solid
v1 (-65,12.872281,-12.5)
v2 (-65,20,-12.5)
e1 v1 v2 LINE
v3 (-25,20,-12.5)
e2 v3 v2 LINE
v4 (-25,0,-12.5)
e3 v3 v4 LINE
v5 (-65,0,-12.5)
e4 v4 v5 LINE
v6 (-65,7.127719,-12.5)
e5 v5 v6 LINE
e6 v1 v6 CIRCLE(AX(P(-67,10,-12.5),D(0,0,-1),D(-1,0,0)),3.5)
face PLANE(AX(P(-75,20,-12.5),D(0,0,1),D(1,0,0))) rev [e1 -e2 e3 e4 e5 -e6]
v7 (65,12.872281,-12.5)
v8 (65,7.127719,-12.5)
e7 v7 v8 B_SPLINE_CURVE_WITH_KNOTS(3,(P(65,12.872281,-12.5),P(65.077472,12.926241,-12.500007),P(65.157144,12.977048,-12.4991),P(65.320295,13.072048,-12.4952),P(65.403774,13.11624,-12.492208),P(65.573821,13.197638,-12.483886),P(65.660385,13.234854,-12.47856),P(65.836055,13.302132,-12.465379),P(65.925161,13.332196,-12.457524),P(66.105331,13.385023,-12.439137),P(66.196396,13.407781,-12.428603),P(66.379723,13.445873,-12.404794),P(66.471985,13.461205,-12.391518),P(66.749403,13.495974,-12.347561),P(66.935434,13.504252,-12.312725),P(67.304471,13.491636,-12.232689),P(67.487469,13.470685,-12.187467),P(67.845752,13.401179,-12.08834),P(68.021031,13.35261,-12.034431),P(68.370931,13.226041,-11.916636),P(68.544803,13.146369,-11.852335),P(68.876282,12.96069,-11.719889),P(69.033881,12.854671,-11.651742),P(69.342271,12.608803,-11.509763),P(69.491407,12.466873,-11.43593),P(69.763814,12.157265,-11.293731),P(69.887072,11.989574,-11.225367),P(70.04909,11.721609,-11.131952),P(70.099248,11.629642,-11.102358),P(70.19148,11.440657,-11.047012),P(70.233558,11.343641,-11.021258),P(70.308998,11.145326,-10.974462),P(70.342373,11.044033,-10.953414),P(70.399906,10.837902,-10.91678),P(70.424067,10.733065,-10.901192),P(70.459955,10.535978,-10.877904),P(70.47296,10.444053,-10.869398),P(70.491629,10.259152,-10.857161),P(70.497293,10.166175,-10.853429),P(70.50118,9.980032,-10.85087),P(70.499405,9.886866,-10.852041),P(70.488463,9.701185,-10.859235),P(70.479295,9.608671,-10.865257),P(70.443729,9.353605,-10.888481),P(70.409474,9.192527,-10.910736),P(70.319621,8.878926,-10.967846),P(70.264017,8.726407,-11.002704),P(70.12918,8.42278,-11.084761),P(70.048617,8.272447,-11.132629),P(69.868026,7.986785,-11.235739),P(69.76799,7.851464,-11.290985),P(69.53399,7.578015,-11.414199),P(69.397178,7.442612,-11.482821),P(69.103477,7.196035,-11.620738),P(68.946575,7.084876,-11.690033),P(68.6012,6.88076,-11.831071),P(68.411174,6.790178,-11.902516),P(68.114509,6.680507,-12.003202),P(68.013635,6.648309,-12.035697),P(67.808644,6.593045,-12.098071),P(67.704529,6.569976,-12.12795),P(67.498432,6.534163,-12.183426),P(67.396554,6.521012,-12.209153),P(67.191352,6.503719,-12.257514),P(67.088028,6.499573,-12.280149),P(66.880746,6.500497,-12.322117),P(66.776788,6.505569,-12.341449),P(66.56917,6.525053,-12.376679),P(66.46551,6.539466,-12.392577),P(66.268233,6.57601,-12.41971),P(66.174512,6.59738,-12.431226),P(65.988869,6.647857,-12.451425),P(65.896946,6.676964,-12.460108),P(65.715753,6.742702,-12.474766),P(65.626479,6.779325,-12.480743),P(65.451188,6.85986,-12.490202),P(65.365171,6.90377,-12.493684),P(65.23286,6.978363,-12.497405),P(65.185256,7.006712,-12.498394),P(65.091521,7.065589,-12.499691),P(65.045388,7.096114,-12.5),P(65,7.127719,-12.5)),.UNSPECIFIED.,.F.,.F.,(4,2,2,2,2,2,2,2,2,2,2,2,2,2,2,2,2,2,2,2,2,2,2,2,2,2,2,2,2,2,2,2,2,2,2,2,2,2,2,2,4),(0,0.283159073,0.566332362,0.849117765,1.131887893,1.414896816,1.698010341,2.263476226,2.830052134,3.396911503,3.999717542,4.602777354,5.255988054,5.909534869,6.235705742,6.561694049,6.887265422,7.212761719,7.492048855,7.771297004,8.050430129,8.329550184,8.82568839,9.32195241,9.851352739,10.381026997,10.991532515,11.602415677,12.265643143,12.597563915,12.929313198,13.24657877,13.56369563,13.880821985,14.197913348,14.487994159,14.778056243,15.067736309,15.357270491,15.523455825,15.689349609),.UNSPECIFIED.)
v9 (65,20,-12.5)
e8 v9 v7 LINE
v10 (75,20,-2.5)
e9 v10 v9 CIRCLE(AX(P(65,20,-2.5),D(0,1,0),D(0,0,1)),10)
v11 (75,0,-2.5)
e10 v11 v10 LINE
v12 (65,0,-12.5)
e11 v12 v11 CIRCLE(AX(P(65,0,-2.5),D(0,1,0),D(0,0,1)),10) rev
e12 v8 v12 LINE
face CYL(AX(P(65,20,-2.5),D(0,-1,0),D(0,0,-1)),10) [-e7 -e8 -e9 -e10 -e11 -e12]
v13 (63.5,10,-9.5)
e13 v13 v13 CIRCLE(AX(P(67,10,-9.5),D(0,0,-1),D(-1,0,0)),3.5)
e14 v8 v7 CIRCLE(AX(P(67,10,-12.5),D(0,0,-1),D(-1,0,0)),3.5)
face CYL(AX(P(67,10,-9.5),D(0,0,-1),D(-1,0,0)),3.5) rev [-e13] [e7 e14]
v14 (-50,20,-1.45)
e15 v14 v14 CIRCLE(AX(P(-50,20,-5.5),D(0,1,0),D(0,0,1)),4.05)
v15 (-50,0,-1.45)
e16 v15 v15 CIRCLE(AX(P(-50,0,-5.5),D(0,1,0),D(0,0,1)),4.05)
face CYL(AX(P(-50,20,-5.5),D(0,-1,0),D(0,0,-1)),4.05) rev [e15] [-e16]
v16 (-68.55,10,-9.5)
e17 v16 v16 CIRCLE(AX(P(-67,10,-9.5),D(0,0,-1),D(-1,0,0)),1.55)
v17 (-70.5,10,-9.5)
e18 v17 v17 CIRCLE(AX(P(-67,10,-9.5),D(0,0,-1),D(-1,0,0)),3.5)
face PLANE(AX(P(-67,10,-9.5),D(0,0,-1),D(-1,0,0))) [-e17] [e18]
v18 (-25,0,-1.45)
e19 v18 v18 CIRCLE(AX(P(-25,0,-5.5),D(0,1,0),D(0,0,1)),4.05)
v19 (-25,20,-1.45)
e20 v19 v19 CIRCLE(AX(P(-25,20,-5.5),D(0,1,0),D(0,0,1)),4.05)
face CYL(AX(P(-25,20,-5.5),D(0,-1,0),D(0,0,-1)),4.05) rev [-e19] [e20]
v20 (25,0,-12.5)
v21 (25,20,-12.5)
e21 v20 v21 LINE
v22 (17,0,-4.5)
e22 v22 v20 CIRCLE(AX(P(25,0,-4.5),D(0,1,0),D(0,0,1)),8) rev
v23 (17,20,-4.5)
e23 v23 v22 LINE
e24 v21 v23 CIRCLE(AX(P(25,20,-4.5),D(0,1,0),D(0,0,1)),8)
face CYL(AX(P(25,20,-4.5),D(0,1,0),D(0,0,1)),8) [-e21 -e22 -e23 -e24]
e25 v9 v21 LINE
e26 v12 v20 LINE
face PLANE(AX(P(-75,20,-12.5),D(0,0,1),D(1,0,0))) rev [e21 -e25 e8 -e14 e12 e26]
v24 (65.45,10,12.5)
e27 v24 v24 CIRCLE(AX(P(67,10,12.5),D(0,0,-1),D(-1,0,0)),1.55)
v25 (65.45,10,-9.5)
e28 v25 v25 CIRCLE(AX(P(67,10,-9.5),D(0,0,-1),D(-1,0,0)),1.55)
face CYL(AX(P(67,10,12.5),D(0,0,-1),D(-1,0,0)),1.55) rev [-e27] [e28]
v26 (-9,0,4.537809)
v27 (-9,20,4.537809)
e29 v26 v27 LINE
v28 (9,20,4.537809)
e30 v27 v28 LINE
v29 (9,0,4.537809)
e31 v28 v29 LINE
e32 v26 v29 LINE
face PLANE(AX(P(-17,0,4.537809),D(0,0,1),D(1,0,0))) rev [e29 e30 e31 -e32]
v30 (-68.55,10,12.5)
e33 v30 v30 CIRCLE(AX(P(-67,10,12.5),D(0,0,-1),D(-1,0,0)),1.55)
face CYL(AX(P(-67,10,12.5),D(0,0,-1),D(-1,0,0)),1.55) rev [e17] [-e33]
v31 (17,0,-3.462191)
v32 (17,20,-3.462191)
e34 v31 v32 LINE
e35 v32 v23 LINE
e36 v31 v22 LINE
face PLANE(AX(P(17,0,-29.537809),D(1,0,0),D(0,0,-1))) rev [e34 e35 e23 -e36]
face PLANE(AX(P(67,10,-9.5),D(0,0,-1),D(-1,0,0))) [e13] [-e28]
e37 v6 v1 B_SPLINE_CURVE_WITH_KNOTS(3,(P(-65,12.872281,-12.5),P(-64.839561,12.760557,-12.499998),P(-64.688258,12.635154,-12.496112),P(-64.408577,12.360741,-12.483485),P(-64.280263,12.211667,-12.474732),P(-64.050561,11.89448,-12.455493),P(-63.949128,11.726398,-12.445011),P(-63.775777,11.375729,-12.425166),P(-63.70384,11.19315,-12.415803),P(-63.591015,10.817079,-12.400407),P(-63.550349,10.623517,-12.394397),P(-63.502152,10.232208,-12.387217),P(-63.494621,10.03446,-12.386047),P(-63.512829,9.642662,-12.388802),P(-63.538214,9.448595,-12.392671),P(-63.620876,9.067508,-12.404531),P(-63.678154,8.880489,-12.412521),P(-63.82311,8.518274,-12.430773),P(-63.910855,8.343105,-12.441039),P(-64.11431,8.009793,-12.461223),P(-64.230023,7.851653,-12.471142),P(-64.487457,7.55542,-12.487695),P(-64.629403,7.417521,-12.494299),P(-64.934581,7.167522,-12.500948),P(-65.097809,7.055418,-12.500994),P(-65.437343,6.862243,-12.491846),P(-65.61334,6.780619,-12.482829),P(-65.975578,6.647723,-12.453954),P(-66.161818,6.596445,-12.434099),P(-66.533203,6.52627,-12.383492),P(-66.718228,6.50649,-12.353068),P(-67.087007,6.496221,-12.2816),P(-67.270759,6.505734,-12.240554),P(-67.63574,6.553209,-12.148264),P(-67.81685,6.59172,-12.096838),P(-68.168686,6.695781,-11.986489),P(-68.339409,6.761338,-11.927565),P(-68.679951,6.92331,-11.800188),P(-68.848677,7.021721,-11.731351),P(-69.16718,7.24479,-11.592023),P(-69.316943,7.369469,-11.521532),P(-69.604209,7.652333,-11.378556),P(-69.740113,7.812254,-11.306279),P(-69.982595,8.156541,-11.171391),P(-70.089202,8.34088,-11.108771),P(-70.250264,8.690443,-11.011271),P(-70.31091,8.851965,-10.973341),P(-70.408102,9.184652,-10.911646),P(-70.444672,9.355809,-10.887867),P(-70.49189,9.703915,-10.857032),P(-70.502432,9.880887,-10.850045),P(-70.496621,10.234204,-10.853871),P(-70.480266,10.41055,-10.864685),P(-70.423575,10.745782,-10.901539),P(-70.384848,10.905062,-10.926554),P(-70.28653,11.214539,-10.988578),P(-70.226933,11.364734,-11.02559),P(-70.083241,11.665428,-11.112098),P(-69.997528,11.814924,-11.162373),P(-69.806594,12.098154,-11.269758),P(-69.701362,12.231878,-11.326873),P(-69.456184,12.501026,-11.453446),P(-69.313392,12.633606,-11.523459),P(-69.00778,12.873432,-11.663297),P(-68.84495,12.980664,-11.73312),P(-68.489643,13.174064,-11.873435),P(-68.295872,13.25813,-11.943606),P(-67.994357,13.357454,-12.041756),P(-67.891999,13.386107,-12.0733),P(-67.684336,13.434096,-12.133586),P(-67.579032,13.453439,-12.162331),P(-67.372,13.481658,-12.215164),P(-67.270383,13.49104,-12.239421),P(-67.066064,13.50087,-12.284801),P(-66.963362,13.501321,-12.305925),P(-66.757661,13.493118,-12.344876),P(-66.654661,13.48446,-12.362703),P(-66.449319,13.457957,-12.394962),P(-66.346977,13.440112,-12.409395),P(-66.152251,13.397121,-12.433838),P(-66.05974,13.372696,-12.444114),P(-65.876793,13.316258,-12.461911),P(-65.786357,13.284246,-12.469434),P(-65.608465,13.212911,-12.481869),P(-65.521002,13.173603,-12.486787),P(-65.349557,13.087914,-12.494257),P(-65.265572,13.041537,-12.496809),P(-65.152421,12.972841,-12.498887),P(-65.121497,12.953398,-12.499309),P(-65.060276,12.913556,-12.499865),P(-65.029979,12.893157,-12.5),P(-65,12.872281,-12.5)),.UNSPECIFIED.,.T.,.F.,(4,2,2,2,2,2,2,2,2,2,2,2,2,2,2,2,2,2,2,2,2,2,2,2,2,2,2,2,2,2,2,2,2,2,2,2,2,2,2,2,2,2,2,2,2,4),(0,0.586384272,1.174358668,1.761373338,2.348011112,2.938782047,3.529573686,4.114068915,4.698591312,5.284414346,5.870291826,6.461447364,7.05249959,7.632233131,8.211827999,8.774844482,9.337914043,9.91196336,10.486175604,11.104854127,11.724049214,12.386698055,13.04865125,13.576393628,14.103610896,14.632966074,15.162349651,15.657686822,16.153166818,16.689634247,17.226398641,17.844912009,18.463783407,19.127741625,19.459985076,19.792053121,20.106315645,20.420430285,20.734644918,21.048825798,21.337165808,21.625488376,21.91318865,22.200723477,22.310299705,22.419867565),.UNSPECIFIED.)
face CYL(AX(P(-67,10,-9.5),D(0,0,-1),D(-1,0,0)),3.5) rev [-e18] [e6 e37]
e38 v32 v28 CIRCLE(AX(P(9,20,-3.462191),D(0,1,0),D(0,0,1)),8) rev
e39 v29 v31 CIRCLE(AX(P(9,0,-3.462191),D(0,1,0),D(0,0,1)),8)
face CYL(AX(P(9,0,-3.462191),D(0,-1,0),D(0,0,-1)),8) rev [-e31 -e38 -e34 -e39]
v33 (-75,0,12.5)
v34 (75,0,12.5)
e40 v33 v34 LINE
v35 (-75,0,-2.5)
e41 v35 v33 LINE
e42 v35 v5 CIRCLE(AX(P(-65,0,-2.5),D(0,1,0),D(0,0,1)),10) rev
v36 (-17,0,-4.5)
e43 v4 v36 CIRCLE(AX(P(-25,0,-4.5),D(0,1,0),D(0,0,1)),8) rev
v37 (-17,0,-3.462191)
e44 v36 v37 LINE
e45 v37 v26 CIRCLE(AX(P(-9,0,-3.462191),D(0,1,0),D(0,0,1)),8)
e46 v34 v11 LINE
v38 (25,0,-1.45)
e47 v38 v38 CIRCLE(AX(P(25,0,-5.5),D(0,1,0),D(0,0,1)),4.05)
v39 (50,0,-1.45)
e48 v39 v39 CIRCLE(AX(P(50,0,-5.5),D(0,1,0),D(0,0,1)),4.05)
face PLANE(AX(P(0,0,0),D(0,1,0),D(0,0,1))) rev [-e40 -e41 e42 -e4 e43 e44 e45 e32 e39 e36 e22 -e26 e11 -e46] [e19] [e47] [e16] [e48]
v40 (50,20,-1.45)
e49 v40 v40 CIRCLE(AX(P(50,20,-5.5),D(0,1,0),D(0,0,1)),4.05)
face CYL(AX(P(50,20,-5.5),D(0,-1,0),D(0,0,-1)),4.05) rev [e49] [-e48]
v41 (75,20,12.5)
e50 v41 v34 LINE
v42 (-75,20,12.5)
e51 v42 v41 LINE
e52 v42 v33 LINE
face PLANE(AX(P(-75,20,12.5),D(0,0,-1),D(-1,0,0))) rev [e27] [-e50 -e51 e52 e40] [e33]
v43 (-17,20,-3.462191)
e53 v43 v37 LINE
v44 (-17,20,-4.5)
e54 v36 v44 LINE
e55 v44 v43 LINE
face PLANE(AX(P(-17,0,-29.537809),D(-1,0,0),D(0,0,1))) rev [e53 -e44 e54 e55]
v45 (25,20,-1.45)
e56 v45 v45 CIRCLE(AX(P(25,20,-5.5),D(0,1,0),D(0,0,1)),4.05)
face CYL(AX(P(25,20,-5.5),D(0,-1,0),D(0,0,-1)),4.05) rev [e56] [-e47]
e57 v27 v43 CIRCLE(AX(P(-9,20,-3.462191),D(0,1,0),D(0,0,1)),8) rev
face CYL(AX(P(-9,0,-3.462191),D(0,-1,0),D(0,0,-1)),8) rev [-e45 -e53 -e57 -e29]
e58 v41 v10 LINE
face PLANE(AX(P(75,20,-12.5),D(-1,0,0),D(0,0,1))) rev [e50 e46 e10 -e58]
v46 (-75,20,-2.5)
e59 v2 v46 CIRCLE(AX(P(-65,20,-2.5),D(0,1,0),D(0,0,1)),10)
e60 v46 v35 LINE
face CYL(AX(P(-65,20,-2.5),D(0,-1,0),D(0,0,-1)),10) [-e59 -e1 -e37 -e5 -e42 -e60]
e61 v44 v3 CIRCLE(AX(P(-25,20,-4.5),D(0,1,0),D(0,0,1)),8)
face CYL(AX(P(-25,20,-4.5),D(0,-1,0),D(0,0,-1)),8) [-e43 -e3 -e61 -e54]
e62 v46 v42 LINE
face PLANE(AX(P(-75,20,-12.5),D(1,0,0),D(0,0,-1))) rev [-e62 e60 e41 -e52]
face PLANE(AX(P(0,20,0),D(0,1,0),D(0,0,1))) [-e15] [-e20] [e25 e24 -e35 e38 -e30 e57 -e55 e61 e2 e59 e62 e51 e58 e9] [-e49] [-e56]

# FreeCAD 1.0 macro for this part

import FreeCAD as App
import Part
import Sketcher
from FreeCAD import Vector


def edges_at(feature, points):
    """Names of the edges that pass closest to the given points."""
    edges = feature.Shape.Edges
    near = lambda p: min(range(len(edges)), key=lambda i: edges[i].distToShape(Part.Vertex(*p))[0])
    return sorted({f"Edge{near(p) + 1}" for p in points})


def add_polygon(sketch, points):
    """Adds a closed chain of lines whose ends are joined by coincident constraints."""
    first, n = sketch.GeometryCount, len(points)
    for a, b in zip(points, points[1:] + points[:1]):
        sketch.addGeometry(Part.LineSegment(App.Vector(*a, 0), App.Vector(*b, 0)), False)
    for i in range(n):
        sketch.addConstraint(Sketcher.Constraint("Coincident", first + i, 2, first + (i + 1) % n, 1))

doc = App.newDocument("Part")
body = doc.addObject("PartDesign::Body", "Body")

# Sketch on XZ plane
sketch1 = body.newObject("Sketcher::SketchObject", "Sketch")
sketch1.AttachmentSupport = (doc.getObject("XZ_Plane"), [""])
sketch1.MapMode = "FlatFace"
add_polygon(sketch1, [(-75, -12.5), (-75, 12.5), (75, 12.5), (75, -12.5)])  # lines 0-3
sketch1.addGeometry(Part.Circle(Vector(-50, -5.5, 0), Vector(0, 0, 1), 4), False)  # 4
sketch1.addGeometry(Part.Circle(Vector(-25, -5.5, 0), Vector(0, 0, 1), 4), False)  # 5
sketch1.addGeometry(Part.Circle(Vector(25, -5.5, 0), Vector(0, 0, 1), 4), False)  # 6
sketch1.addGeometry(Part.Circle(Vector(50, -5.5, 0), Vector(0, 0, 1), 4), False)  # 7
sketch1.addConstraint([
    Sketcher.Constraint("Vertical", 0),
    Sketcher.Constraint("Horizontal", 1),
    Sketcher.Constraint("Vertical", 2),
    Sketcher.Constraint("Horizontal", 3),
    Sketcher.Constraint("Equal", 4, 5),
    Sketcher.Constraint("Equal", 5, 6),
    Sketcher.Constraint("Equal", 6, 7),
    Sketcher.Constraint("Symmetric", 0, 2, 2, 2, -1, 1),
    Sketcher.Constraint("Symmetric", 5, 3, 6, 3, -2),
    Sketcher.Constraint("Symmetric", 4, 3, 7, 3, -2),
    Sketcher.Constraint("Horizontal", 4, 3, 5, 3),
    Sketcher.Constraint("Diameter", 4, 8.1),
    Sketcher.Constraint("DistanceX", 1, 1, 1, 2, 150.0),
    Sketcher.Constraint("DistanceY", 0, 1, 0, 2, 25.0),
    Sketcher.Constraint("DistanceX", 4, 3, -1, 1, 50.0),
    Sketcher.Constraint("DistanceX", 5, 3, -1, 1, 25.0),
    Sketcher.Constraint("DistanceY", 4, 3, 0, 2, 18.0),
])
pad1 = body.newObject("PartDesign::Pad", "Pad")
pad1.Profile = sketch1
pad1.Length = 20
pad1.Reversed = True
doc.recompute()

fillet = body.newObject("PartDesign::Fillet", "Fillet")
fillet.Base = (pad1, edges_at(pad1, [(-75, 10, -12.5), (75, 10, -12.5)]))
fillet.Radius = 10

# Sketch on XY plane
sketch2 = body.newObject("Sketcher::SketchObject", "Sketch001")
sketch2.AttachmentSupport = (doc.getObject("XY_Plane"), [""])
sketch2.MapMode = "FlatFace"
sketch2.AttachmentOffset = App.Placement(Vector(0, 0, -12.5), App.Rotation())
sketch2.addGeometry([
    Part.Circle(Vector(67, 10, 0), Vector(0, 0, 1), 1.6),
    Part.Circle(Vector(-67, 10, 0), Vector(0, 0, 1), 1.6),
], False)
sketch2.addConstraint([
    Sketcher.Constraint("Equal", 0, 1),
    Sketcher.Constraint("Symmetric", 0, 3, 1, 3, -2),
    Sketcher.Constraint("Diameter", 0, 3.1),
    Sketcher.Constraint("DistanceX", -1, 1, 0, 3, 67.0),
    Sketcher.Constraint("DistanceY", -1, 1, 0, 3, 10.0),
])
pocket1 = body.newObject("PartDesign::Pocket", "Pocket")
pocket1.Profile = sketch2
pocket1.Type = "ThroughAll"
pocket1.Reversed = True

# Sketch on XY plane
sketch3 = body.newObject("Sketcher::SketchObject", "Sketch002")
sketch3.AttachmentSupport = (doc.getObject("XY_Plane"), [""])
sketch3.MapMode = "FlatFace"
sketch3.AttachmentOffset = App.Placement(Vector(0, 0, -12.5), App.Rotation())
sketch3.addGeometry([
    Part.Circle(Vector(67, 10, 0), Vector(0, 0, 1), 3.5),
    Part.Circle(Vector(67, 10, 0), Vector(0, 0, 1), 1.6),
    Part.Circle(Vector(-67, 10, 0), Vector(0, 0, 1), 3.5),
    Part.Circle(Vector(-67, 10, 0), Vector(0, 0, 1), 1.6),
], False)
sketch3.addConstraint([
    Sketcher.Constraint("Coincident", 1, 3, 0, 3),
    Sketcher.Constraint("Coincident", 3, 3, 2, 3),
    Sketcher.Constraint("Equal", 0, 2),
    Sketcher.Constraint("Equal", 1, 3),
    Sketcher.Constraint("Symmetric", 0, 3, 2, 3, -2),
    Sketcher.Constraint("Diameter", 0, 7.0),
    Sketcher.Constraint("Diameter", 1, 3.1),
    Sketcher.Constraint("DistanceX", -1, 1, 0, 3, 67.0),
    Sketcher.Constraint("DistanceY", -1, 1, 0, 3, 10.0),
])
pocket2 = body.newObject("PartDesign::Pocket", "Pocket001")
pocket2.Profile = sketch3
pocket2.Length = 3
pocket2.Reversed = True

# Sketch on XZ plane
sketch4 = body.newObject("Sketcher::SketchObject", "Sketch003")
sketch4.AttachmentSupport = (doc.getObject("XZ_Plane"), [""])
sketch4.MapMode = "FlatFace"
sketch4.AttachmentOffset = App.Placement(Vector(0, 0, -20), App.Rotation())
add_polygon(sketch4, [(-17, -30), (-17, 5), (17, 5), (17, -30)])  # lines 0-3
sketch4.addConstraint([
    Sketcher.Constraint("Vertical", 0),
    Sketcher.Constraint("Horizontal", 1),
    Sketcher.Constraint("Vertical", 2),
    Sketcher.Constraint("Horizontal", 3),
    Sketcher.Constraint("DistanceX", 1, 1, 1, 2, 34.0),
    Sketcher.Constraint("DistanceX", 0, 2, -1, 1, 17.0),
    Sketcher.Constraint("DistanceY", 0, 1, 0, 2, 34.075618),
    Sketcher.Constraint("DistanceY", -1, 1, 0, 2, 4.537809),
])
pocket3 = body.newObject("PartDesign::Pocket", "Pocket002")
pocket3.Profile = sketch4
pocket3.Type = "ThroughAll"
pocket3.Reversed = True
doc.recompute()

fillet2 = body.newObject("PartDesign::Fillet", "Fillet001")
fillet2.Base = (pocket3, edges_at(pocket3, [
    (-17, 10, -12.5),
    (17, 10, -12.5),
    (-17, 10, 4.538),
    (17, 10, 4.538),
]))
fillet2.Radius = 8

doc.recompute()
